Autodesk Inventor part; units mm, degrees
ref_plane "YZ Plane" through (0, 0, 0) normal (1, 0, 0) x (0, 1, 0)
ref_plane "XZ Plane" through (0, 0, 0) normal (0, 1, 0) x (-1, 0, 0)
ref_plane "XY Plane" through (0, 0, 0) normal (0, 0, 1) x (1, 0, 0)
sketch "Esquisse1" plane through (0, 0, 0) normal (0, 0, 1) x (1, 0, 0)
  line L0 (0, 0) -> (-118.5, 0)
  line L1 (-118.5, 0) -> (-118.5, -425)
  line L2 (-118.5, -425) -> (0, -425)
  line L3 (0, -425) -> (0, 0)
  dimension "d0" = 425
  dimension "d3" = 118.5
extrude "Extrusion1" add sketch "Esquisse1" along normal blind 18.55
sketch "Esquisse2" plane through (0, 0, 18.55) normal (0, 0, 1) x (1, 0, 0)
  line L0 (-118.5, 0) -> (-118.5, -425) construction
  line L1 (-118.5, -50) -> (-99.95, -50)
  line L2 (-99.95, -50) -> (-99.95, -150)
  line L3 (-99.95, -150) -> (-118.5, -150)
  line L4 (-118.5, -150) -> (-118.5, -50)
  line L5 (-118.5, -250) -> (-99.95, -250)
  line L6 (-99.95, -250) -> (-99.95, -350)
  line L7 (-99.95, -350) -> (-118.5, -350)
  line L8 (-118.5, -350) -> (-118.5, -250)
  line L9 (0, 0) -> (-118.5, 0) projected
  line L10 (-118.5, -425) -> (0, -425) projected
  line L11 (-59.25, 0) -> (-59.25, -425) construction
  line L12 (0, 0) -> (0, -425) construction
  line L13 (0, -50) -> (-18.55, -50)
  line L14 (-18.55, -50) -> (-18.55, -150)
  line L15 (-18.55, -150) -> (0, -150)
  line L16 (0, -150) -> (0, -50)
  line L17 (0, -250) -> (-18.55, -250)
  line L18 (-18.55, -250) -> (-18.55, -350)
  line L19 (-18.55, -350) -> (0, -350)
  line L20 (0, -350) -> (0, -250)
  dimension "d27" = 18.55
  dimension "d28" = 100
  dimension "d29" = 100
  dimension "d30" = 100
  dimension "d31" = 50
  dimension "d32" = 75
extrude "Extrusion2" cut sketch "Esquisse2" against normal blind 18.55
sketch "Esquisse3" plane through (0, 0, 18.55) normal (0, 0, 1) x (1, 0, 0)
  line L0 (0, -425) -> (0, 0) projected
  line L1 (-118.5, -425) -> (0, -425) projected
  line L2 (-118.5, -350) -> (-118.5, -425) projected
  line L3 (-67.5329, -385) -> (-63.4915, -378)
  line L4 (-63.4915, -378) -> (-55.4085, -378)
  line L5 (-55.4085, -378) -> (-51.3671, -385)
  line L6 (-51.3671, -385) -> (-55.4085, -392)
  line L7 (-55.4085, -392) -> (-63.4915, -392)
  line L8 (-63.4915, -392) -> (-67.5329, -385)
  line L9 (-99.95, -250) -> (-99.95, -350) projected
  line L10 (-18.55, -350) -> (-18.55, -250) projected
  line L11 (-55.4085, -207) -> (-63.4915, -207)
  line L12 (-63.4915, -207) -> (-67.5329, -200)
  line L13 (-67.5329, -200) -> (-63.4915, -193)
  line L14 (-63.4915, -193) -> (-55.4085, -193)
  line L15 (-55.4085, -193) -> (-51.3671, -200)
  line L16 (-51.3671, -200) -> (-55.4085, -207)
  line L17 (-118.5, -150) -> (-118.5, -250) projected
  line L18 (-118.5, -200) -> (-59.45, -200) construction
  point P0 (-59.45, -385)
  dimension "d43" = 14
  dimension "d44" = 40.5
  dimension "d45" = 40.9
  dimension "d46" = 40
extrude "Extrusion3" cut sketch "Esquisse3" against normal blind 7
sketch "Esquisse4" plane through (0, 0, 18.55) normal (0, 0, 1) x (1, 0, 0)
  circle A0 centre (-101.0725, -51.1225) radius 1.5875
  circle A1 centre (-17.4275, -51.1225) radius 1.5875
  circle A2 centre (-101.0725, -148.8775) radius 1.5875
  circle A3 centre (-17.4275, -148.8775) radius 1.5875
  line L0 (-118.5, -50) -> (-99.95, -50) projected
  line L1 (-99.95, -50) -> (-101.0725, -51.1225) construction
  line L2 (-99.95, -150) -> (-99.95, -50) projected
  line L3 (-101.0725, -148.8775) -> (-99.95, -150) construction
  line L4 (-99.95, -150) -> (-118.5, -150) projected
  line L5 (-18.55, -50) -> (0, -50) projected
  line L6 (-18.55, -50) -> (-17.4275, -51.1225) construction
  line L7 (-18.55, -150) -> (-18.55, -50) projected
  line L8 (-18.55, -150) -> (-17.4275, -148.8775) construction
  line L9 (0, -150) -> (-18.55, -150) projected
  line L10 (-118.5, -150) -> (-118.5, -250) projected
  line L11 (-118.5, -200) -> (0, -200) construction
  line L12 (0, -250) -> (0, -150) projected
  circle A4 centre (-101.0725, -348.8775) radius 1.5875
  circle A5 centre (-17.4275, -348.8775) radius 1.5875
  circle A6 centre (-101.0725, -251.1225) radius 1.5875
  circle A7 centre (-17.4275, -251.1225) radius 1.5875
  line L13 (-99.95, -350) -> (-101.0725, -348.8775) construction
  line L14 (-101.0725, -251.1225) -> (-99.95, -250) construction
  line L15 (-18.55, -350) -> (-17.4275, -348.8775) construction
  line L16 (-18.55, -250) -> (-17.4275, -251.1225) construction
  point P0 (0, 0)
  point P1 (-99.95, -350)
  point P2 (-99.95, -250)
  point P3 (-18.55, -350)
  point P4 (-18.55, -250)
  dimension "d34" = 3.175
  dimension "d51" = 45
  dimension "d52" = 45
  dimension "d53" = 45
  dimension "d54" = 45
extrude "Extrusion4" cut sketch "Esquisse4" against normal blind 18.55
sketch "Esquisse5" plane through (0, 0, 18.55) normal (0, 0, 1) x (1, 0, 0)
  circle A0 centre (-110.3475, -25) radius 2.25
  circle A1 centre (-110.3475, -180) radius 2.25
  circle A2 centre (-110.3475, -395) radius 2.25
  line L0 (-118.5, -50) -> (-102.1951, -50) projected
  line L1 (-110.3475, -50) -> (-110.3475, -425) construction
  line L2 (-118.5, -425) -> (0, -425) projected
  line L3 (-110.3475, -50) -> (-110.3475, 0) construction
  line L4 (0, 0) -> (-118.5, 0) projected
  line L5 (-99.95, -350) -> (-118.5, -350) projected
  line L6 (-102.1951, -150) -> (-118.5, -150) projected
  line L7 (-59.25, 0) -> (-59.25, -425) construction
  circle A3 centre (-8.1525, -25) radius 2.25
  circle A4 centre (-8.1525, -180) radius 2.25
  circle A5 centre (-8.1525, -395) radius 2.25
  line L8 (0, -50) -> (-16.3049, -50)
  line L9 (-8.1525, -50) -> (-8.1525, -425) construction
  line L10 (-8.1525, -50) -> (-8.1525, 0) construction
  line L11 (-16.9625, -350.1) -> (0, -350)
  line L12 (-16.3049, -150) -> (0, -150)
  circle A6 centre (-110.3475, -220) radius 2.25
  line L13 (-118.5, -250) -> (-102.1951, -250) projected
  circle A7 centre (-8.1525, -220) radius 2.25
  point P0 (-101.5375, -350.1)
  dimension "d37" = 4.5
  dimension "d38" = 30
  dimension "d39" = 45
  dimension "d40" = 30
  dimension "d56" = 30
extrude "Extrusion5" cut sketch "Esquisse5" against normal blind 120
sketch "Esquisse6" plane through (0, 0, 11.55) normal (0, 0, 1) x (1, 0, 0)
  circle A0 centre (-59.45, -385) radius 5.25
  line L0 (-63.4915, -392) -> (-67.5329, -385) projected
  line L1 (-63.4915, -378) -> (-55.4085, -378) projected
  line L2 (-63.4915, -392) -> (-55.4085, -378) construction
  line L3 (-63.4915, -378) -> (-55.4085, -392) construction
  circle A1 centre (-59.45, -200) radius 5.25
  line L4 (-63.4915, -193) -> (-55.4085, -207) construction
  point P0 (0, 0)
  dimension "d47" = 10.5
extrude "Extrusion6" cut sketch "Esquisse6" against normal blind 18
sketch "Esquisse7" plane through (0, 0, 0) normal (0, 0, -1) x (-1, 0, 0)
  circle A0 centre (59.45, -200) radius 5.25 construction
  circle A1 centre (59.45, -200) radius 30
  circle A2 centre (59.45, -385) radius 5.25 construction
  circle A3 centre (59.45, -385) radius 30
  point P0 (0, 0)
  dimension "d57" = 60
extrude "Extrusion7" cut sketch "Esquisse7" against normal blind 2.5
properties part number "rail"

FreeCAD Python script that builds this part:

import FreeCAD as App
import Part
import Sketcher
from FreeCAD import Vector
Q = App.Units.Quantity


def add_polygon(sketch, points):
    """Adds a closed chain of lines whose ends are joined by coincident constraints."""
    first, n = sketch.GeometryCount, len(points)
    for a, b in zip(points, points[1:] + points[:1]):
        sketch.addGeometry(Part.LineSegment(App.Vector(*a, 0), App.Vector(*b, 0)), False)
    for i in range(n):
        sketch.addConstraint(Sketcher.Constraint("Coincident", first + i, 2, first + (i + 1) % n, 1))

doc = App.newDocument("Part")
body = doc.addObject("PartDesign::Body", "Body")

# Sketch on XY plane
sketch1 = doc.addObject("Sketcher::SketchObject", "Sketch")
body.addObject(sketch1)
sketch1.AttachmentSupport = (doc.XY_Plane, [""])
sketch1.MapMode = "FlatFace"
add_polygon(sketch1, [(0, -425), (0, 0), (-118.5, 0), (-118.5, -425)])  # lines 0-3
sketch1.addConstraint([
    Sketcher.Constraint("Vertical", 0),
    Sketcher.Constraint("Horizontal", 1),
    Sketcher.Constraint("Vertical", 2),
    Sketcher.Constraint("Horizontal", 3),
    Sketcher.Constraint("Coincident", 0, 2, -1, 1),
    Sketcher.Constraint("DistanceY", 0, 1, 0, 2, 425.0),
    Sketcher.Constraint("DistanceX", 1, 2, 1, 1, 118.5),
])
pad1 = doc.addObject("PartDesign::Pad", "Pad")
body.addObject(pad1)
pad1.Profile = sketch1
pad1.Length = 18.55

# Sketch on XY plane
sketch2 = doc.addObject("Sketcher::SketchObject", "Sketch001")
body.addObject(sketch2)
sketch2.AttachmentSupport = (doc.XY_Plane, [""])
sketch2.MapMode = "FlatFace"
sketch2.AttachmentOffset = App.Placement(Vector(0, 0, 18.55), App.Rotation())
add_polygon(sketch2, [(-99.95, -50), (-118.5, -50), (-118.5, -150), (-99.95, -150)])  # lines 0-3
add_polygon(sketch2, [(-99.95, -250), (-118.5, -250), (-118.5, -350), (-99.95, -350)])  # lines 4-7
add_polygon(sketch2, [(0, -150), (0, -50), (-18.55, -50), (-18.55, -150)])  # lines 8-11
add_polygon(sketch2, [(0, -350), (0, -250), (-18.55, -250), (-18.55, -350)])  # lines 12-15
sketch2.addConstraint([
    Sketcher.Constraint("Horizontal", 0),
    Sketcher.Constraint("Vertical", 1),
    Sketcher.Constraint("Horizontal", 2),
    Sketcher.Constraint("Vertical", 3),
    Sketcher.Constraint("Horizontal", 4),
    Sketcher.Constraint("Vertical", 5),
    Sketcher.Constraint("Horizontal", 6),
    Sketcher.Constraint("Vertical", 7),
    Sketcher.Constraint("Vertical", 8),
    Sketcher.Constraint("Horizontal", 9),
    Sketcher.Constraint("Vertical", 10),
    Sketcher.Constraint("Horizontal", 11),
    Sketcher.Constraint("Vertical", 12),
    Sketcher.Constraint("Horizontal", 13),
    Sketcher.Constraint("Vertical", 14),
    Sketcher.Constraint("Horizontal", 15),
    Sketcher.Constraint("PointOnObject", 8, 2, -2),
    Sketcher.Constraint("PointOnObject", 12, 2, -2),
    Sketcher.Constraint("Horizontal", 3, 2, 8, 2),
    Sketcher.Constraint("Horizontal", 2, 2, 10, 2),
    Sketcher.Constraint("Horizontal", 7, 2, 12, 2),
    Sketcher.Constraint("Horizontal", 6, 2, 14, 2),
    Sketcher.Constraint("Vertical", 1, 2, 4, 2),
    Sketcher.Constraint("Vertical", 3, 2, 6, 2),
    Sketcher.Constraint("Vertical", 10, 2, 13, 2),
    Sketcher.Constraint("Equal", 6, 9),
    Sketcher.Constraint("Equal", 3, 5),
    Sketcher.Constraint("DistanceY", 1, 2, 1, 1, 100.0),
    Sketcher.Constraint("DistanceY", 0, 2, -1, 1, 50.0),
    Sketcher.Constraint("DistanceY", 4, 2, 1, 2, 100.0),
    Sketcher.Constraint("DistanceX", 0, 2, 0, 1, 18.55),
    Sketcher.Constraint("DistanceX", 0, 2, -1, 1, 118.5),
])
pocket1 = doc.addObject("PartDesign::Pocket", "Pocket")
body.addObject(pocket1)
pocket1.Profile = sketch2
pocket1.Length = 18.55

# Sketch on XY plane
sketch3 = doc.addObject("Sketcher::SketchObject", "Sketch002")
body.addObject(sketch3)
sketch3.AttachmentSupport = (doc.XY_Plane, [""])
sketch3.MapMode = "FlatFace"
sketch3.AttachmentOffset = App.Placement(Vector(0, 0, 18.55), App.Rotation())
add_polygon(sketch3, [(-63.4915, -378), (-67.5329, -385), (-63.4915, -392), (-55.4085, -392), (-51.3671, -385), (-55.4085, -378)])  # lines 0-5
add_polygon(sketch3, [(-63.4915, -207), (-55.4085, -207), (-51.3671, -200), (-55.4085, -193), (-63.4915, -193), (-67.5329, -200)])  # lines 6-11
sketch3.addConstraint([
    Sketcher.Constraint("Horizontal", 2),
    Sketcher.Constraint("Horizontal", 5),
    Sketcher.Constraint("Horizontal", 6),
    Sketcher.Constraint("Horizontal", 9),
    Sketcher.Constraint("Parallel", 0, 3),
    Sketcher.Constraint("Parallel", 1, 4),
    Sketcher.Constraint("Parallel", 3, 7),
    Sketcher.Constraint("Parallel", 4, 8),
    Sketcher.Constraint("Parallel", 7, 10),
    Sketcher.Constraint("Parallel", 8, 11),
    Sketcher.Constraint("Horizontal", 0, 2, 3, 2),
    Sketcher.Constraint("Horizontal", 7, 2, 10, 2),
    Sketcher.Constraint("Vertical", 2, 2, 4, 2),
    Sketcher.Constraint("Vertical", 1, 2, 5, 2),
    Sketcher.Constraint("Vertical", 4, 2, 6, 2),
    Sketcher.Constraint("Vertical", 3, 2, 7, 2),
    Sketcher.Constraint("Vertical", 6, 2, 8, 2),
    Sketcher.Constraint("Vertical", 5, 2, 9, 2),
    Sketcher.Constraint("DistanceY", 2, 2, 4, 2, 14.0),
    Sketcher.Constraint("Angle", 0, Q("-119.9997 deg")),
    Sketcher.Constraint("DistanceY", 0, 2, -1, 1, 385.0),
    Sketcher.Constraint("DistanceY", 6, 2, -1, 1, 207.0),
    Sketcher.Constraint("DistanceX", 2, 1, 2, 2, 8.083),
    Sketcher.Constraint("DistanceX", 0, 2, -1, 1, 67.533),
])
pocket2 = doc.addObject("PartDesign::Pocket", "Pocket001")
body.addObject(pocket2)
pocket2.Profile = sketch3
pocket2.Length = 7

# Sketch on XY plane
sketch4 = doc.addObject("Sketcher::SketchObject", "Sketch003")
body.addObject(sketch4)
sketch4.AttachmentSupport = (doc.XY_Plane, [""])
sketch4.MapMode = "FlatFace"
sketch4.AttachmentOffset = App.Placement(Vector(0, 0, 18.55), App.Rotation())
sketch4.addGeometry([
    Part.Circle(Vector(-101.0725, -51.1225, 0), Vector(0, 0, 1), 1.5875),  # 0
    Part.Circle(Vector(-101.0725, -148.8775, 0), Vector(0, 0, 1), 1.5875),  # 1
    Part.Circle(Vector(-17.4275, -51.1225, 0), Vector(0, 0, 1), 1.5875),  # 2
    Part.Circle(Vector(-17.4275, -148.8775, 0), Vector(0, 0, 1), 1.5875),  # 3
    Part.Circle(Vector(-101.0725, -348.8775, 0), Vector(0, 0, 1), 1.5875),  # 4
    Part.Circle(Vector(-17.4275, -348.8775, 0), Vector(0, 0, 1), 1.5875),  # 5
    Part.Circle(Vector(-101.0725, -251.1225, 0), Vector(0, 0, 1), 1.5875),  # 6
    Part.Circle(Vector(-17.4275, -251.1225, 0), Vector(0, 0, 1), 1.5875),  # 7
], False)
sketch4.addConstraint([
    Sketcher.Constraint("Equal", 0, 1),
    Sketcher.Constraint("Equal", 1, 2),
    Sketcher.Constraint("Equal", 2, 3),
    Sketcher.Constraint("Equal", 3, 4),
    Sketcher.Constraint("Equal", 4, 5),
    Sketcher.Constraint("Equal", 5, 6),
    Sketcher.Constraint("Equal", 6, 7),
    Sketcher.Constraint("Horizontal", 0, 3, 2, 3),
    Sketcher.Constraint("Horizontal", 1, 3, 3, 3),
    Sketcher.Constraint("Horizontal", 4, 3, 5, 3),
    Sketcher.Constraint("Horizontal", 6, 3, 7, 3),
    Sketcher.Constraint("Vertical", 0, 3, 1, 3),
    Sketcher.Constraint("Vertical", 2, 3, 3, 3),
    Sketcher.Constraint("Vertical", 1, 3, 4, 3),
    Sketcher.Constraint("Vertical", 3, 3, 5, 3),
    Sketcher.Constraint("Vertical", 4, 3, 6, 3),
    Sketcher.Constraint("Vertical", 5, 3, 7, 3),
    Sketcher.Constraint("Diameter", 0, 3.175),
    Sketcher.Constraint("DistanceY", 4, 3, 1, 3, 200.0),
    Sketcher.Constraint("DistanceY", 6, 3, 0, 3, 200.0),
    Sketcher.Constraint("DistanceY", 1, 3, 0, 3, 97.755),
    Sketcher.Constraint("DistanceX", 0, 3, 2, 3, 83.645),
    Sketcher.Constraint("DistanceX", 0, 3, -1, 1, 101.0725),
    Sketcher.Constraint("DistanceY", 0, 3, -1, 1, 51.1225),
])
pocket3 = doc.addObject("PartDesign::Pocket", "Pocket002")
body.addObject(pocket3)
pocket3.Profile = sketch4
pocket3.Length = 18.55

# Sketch on XY plane
sketch5 = doc.addObject("Sketcher::SketchObject", "Sketch004")
body.addObject(sketch5)
sketch5.AttachmentSupport = (doc.XY_Plane, [""])
sketch5.MapMode = "FlatFace"
sketch5.AttachmentOffset = App.Placement(Vector(0, 0, 18.55), App.Rotation())
sketch5.addGeometry([
    Part.Circle(Vector(-110.3475, -25, 0), Vector(0, 0, 1), 2.25),  # 0
    Part.Circle(Vector(-110.3475, -180, 0), Vector(0, 0, 1), 2.25),  # 1
    Part.Circle(Vector(-110.3475, -395, 0), Vector(0, 0, 1), 2.25),  # 2
    Part.Circle(Vector(-8.1525, -25, 0), Vector(0, 0, 1), 2.25),  # 3
    Part.Circle(Vector(-8.1525, -180, 0), Vector(0, 0, 1), 2.25),  # 4
    Part.Circle(Vector(-8.1525, -395, 0), Vector(0, 0, 1), 2.25),  # 5
    Part.Circle(Vector(-110.3475, -220, 0), Vector(0, 0, 1), 2.25),  # 6
    Part.Circle(Vector(-8.1525, -220, 0), Vector(0, 0, 1), 2.25),  # 7
], False)
sketch5.addConstraint([
    Sketcher.Constraint("Equal", 0, 1),
    Sketcher.Constraint("Equal", 1, 2),
    Sketcher.Constraint("Equal", 2, 3),
    Sketcher.Constraint("Equal", 3, 4),
    Sketcher.Constraint("Equal", 4, 5),
    Sketcher.Constraint("Equal", 5, 6),
    Sketcher.Constraint("Equal", 6, 7),
    Sketcher.Constraint("Horizontal", 0, 3, 3, 3),
    Sketcher.Constraint("Horizontal", 1, 3, 4, 3),
    Sketcher.Constraint("Horizontal", 2, 3, 5, 3),
    Sketcher.Constraint("Horizontal", 6, 3, 7, 3),
    Sketcher.Constraint("Vertical", 0, 3, 1, 3),
    Sketcher.Constraint("Vertical", 1, 3, 2, 3),
    Sketcher.Constraint("Vertical", 3, 3, 4, 3),
    Sketcher.Constraint("Vertical", 4, 3, 5, 3),
    Sketcher.Constraint("Vertical", 2, 3, 6, 3),
    Sketcher.Constraint("Vertical", 5, 3, 7, 3),
    Sketcher.Constraint("Diameter", 0, 4.5),
    Sketcher.Constraint("DistanceY", 0, 3, -1, 1, 25.0),
    Sketcher.Constraint("DistanceY", 1, 3, -1, 1, 180.0),
    Sketcher.Constraint("DistanceY", 2, 3, -1, 1, 395.0),
    Sketcher.Constraint("DistanceY", 6, 3, -1, 1, 220.0),
    Sketcher.Constraint("DistanceX", 0, 3, 3, 3, 102.195),
    Sketcher.Constraint("DistanceX", 0, 3, -1, 1, 110.3475),
])
pocket4 = doc.addObject("PartDesign::Pocket", "Pocket003")
body.addObject(pocket4)
pocket4.Profile = sketch5
pocket4.Length = 120

# Sketch on XY plane
sketch6 = doc.addObject("Sketcher::SketchObject", "Sketch005")
body.addObject(sketch6)
sketch6.AttachmentSupport = (doc.XY_Plane, [""])
sketch6.MapMode = "FlatFace"
sketch6.AttachmentOffset = App.Placement(Vector(0, 0, 11.55), App.Rotation())
sketch6.addGeometry([
    Part.Circle(Vector(-59.45, -385, 0), Vector(0, 0, 1), 5.25),
    Part.Circle(Vector(-59.45, -200, 0), Vector(0, 0, 1), 5.25),
], False)
sketch6.addConstraint([
    Sketcher.Constraint("Equal", 0, 1),
    Sketcher.Constraint("Vertical", 0, 3, 1, 3),
    Sketcher.Constraint("Diameter", 0, 10.5),
    Sketcher.Constraint("DistanceY", 0, 3, -1, 1, 385.0),
    Sketcher.Constraint("DistanceY", 1, 3, -1, 1, 200.0),
    Sketcher.Constraint("DistanceX", 0, 3, -1, 1, 59.45),
])
pocket5 = doc.addObject("PartDesign::Pocket", "Pocket004")
body.addObject(pocket5)
pocket5.Profile = sketch6
pocket5.Length = 18

# Sketch on XY plane
sketch7 = doc.addObject("Sketcher::SketchObject", "Sketch006")
body.addObject(sketch7)
sketch7.AttachmentSupport = (doc.XY_Plane, [""])
sketch7.MapMode = "FlatFace"
sketch7.addGeometry([
    Part.Circle(Vector(-59.45, -200, 0), Vector(0, 0, 1), 30),
    Part.Circle(Vector(-59.45, -385, 0), Vector(0, 0, 1), 30),
], False)
sketch7.addConstraint([
    Sketcher.Constraint("Equal", 0, 1),
    Sketcher.Constraint("Vertical", 0, 3, 1, 3),
    Sketcher.Constraint("Diameter", 0, 60.0),
    Sketcher.Constraint("DistanceY", 0, 3, -1, 1, 200.0),
    Sketcher.Constraint("DistanceY", 1, 3, -1, 1, 385.0),
    Sketcher.Constraint("DistanceX", 0, 3, -1, 1, 59.45),
])
pocket6 = doc.addObject("PartDesign::Pocket", "Pocket005")
body.addObject(pocket6)
pocket6.Profile = sketch7
pocket6.Length = 2.5
pocket6.Reversed = True

doc.recompute()
